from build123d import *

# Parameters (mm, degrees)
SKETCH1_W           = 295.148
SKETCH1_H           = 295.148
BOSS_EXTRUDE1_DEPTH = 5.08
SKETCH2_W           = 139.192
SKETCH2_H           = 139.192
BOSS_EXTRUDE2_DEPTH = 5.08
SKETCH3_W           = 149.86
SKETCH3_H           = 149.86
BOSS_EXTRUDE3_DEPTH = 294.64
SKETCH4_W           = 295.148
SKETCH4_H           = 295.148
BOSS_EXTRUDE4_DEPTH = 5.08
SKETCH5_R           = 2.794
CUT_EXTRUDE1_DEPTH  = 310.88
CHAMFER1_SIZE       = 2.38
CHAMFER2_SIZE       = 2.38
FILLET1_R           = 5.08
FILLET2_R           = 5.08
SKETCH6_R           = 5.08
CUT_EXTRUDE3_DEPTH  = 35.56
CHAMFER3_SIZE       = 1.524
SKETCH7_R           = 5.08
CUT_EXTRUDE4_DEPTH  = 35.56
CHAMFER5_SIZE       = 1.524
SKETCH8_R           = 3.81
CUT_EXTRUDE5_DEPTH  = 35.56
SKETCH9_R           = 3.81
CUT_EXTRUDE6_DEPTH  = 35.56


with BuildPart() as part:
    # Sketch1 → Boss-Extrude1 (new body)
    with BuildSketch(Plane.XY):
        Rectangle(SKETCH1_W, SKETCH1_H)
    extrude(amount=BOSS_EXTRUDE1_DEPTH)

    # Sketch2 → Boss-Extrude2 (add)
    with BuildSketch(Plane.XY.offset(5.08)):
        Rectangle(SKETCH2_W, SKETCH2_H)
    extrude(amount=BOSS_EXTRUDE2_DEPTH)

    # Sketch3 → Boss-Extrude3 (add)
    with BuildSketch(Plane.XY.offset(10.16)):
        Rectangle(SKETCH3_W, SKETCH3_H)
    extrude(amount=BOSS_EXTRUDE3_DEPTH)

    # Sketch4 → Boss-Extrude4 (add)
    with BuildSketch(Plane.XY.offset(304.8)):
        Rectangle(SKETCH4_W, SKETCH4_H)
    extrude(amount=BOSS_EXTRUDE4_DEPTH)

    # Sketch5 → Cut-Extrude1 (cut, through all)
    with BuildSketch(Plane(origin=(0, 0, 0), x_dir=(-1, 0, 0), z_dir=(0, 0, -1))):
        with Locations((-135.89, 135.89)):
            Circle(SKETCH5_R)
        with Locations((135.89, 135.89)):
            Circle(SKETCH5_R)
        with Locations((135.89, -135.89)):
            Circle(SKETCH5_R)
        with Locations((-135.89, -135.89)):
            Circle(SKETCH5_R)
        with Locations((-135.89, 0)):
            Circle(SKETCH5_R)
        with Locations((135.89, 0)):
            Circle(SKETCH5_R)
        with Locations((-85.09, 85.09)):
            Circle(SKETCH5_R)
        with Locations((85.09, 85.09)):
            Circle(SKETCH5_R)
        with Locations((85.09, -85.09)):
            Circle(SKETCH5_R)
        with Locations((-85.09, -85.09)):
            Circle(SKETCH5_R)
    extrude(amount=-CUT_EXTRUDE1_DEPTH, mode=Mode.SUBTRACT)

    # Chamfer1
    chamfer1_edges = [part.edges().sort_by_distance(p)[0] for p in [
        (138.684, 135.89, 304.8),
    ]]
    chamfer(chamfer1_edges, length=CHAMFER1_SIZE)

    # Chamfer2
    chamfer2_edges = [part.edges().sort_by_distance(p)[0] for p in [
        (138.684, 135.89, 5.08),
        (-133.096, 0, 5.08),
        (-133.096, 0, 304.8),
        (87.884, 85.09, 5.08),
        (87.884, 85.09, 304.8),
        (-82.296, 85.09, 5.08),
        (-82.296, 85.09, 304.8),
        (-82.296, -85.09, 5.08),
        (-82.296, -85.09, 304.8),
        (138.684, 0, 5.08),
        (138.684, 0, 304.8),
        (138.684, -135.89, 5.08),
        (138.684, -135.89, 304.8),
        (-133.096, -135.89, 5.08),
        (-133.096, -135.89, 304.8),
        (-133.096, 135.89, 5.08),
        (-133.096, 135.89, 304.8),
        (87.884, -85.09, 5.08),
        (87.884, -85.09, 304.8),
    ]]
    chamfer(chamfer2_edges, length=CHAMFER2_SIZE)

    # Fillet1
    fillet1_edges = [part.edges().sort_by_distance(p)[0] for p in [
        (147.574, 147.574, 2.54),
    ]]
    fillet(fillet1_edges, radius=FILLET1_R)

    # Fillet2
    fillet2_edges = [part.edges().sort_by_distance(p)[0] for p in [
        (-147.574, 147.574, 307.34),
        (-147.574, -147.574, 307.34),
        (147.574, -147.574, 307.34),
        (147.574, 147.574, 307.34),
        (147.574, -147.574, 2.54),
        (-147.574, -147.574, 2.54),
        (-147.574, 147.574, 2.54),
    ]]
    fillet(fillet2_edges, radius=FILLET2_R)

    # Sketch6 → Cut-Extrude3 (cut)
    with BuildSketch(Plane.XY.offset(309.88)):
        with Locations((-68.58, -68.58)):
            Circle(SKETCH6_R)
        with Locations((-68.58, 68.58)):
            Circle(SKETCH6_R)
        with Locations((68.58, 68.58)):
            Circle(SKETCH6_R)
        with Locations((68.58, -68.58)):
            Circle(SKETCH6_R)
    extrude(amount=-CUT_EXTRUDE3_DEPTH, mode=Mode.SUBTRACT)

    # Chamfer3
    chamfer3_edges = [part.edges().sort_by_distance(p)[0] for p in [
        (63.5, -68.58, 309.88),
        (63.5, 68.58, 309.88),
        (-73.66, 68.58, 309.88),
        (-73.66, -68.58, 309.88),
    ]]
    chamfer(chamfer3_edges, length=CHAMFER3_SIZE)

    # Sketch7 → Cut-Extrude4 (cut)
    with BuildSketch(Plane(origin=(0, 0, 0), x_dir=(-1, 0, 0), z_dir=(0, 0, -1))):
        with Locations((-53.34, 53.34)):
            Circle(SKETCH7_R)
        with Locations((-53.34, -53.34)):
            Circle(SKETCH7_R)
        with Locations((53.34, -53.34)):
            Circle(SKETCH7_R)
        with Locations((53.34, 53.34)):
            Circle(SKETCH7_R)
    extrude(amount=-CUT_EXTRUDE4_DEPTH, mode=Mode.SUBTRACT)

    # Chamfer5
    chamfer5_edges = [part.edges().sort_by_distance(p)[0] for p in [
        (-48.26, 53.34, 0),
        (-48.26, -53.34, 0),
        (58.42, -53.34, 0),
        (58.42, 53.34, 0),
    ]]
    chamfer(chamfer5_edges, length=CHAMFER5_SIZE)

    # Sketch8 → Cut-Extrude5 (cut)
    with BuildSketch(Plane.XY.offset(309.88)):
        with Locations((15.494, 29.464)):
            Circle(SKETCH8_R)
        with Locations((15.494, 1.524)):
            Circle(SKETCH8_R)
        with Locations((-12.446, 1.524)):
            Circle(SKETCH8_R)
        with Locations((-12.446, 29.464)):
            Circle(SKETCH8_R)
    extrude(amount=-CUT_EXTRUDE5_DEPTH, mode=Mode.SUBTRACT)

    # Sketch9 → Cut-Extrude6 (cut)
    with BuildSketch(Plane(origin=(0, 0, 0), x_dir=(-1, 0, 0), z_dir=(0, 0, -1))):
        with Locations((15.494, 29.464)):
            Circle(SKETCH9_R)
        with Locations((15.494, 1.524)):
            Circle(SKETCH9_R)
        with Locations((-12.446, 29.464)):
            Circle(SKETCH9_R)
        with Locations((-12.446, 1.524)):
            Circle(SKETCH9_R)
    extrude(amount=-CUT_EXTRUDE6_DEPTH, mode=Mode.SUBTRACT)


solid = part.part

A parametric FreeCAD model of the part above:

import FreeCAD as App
import Part
import Sketcher

V = App.Vector
Q = App.Units.Quantity


def edges_at(feature, points):
    """Names of the edges that pass closest to the given points."""
    edges = feature.Shape.Edges
    near = lambda p: min(range(len(edges)), key=lambda i: edges[i].distToShape(Part.Vertex(*p))[0])
    return sorted({f"Edge{near(p) + 1}" for p in points})


def add_polygon(sketch, points):
    """Adds a closed chain of lines whose ends are joined by coincident constraints."""
    first, n = sketch.GeometryCount, len(points)
    for a, b in zip(points, points[1:] + points[:1]):
        sketch.addGeometry(Part.LineSegment(App.Vector(*a, 0), App.Vector(*b, 0)), False)
    for i in range(n):
        sketch.addConstraint(Sketcher.Constraint("Coincident", first + i, 2, first + (i + 1) % n, 1))

doc = App.newDocument("Part")
params = doc.addObject("Spreadsheet::Sheet", "Params")
for row, (alias, value) in enumerate([
    ("sketch1_width", "11.62 in"),
    ("pad1_length", "0.2 in"),
    ("sketch2_width", "5.48 in"),
    ("pad2_length", "0.2 in"),
    ("sketch3_width", "5.9 in"),
    ("pad3_length", "11.6 in"),
    ("sketch4_width", "11.62 in"),
    ("pad4_length", "0.2 in"),
    ("sketch5_diameter", "0.22 in"),
    ("chamfer_size", "2.38 mm"),
    ("chamfer2_size", "2.38 mm"),
    ("fillet_radius", "0.2 in"),
    ("fillet2_radius", "0.2 in"),
    ("sketch6_diameter", "0.4 in"),
    ("pocket2_length", "1.4 in"),
    ("chamfer3_size", "0.06 in"),
    ("sketch7_diameter", "0.4 in"),
    ("pocket3_length", "1.4 in"),
    ("chamfer4_size", "0.06 in"),
    ("sketch8_diameter", "0.3 in"),
    ("pocket4_length", "1.4 in"),
    ("sketch9_diameter", "0.3 in"),
    ("pocket5_length", "1.4 in"),
], start=1):
    params.set(f"A{row}", alias)
    params.set(f"B{row}", "=" + value)
    params.setAlias(f"B{row}", alias)

body = doc.addObject("PartDesign::Body", "Body")

sketch1 = body.newObject("Sketcher::SketchObject", "Sketch")
sketch1.AttachmentSupport = (doc.getObject("XY_Plane"), [""])
sketch1.MapMode = "FlatFace"
add_polygon(sketch1, [(-148, 148), (-148, -148), (148, -148), (148, 148)])
sketch1.addConstraint([
    Sketcher.Constraint("Vertical", 0),
    Sketcher.Constraint("Horizontal", 1),
    Sketcher.Constraint("Vertical", 2),
    Sketcher.Constraint("Horizontal", 3),
    Sketcher.Constraint("Symmetric", 0, 2, 2, 2, -1, 1),
    Sketcher.Constraint("Equal", 3, 0),
    Sketcher.Constraint("DistanceX", 1, 1, 1, 2, Q("11.62 in")),
])
sketch1.setExpression("Constraints[10]", "Params.sketch1_width")
pad1 = body.newObject("PartDesign::Pad", "Pad")
pad1.Profile = sketch1
pad1.setExpression("Length", "Params.pad1_length")

sketch2 = body.newObject("Sketcher::SketchObject", "Sketch001")
sketch2.AttachmentSupport = (doc.getObject("XY_Plane"), [""])
sketch2.MapMode = "FlatFace"
sketch2.AttachmentOffset = App.Placement(V(0, 0, 0.2 * 25.4), App.Rotation())
add_polygon(sketch2, [(-70, 70), (-70, -70), (70, -70), (70, 70)])
sketch2.addConstraint([
    Sketcher.Constraint("Vertical", 0),
    Sketcher.Constraint("Horizontal", 1),
    Sketcher.Constraint("Vertical", 2),
    Sketcher.Constraint("Horizontal", 3),
    Sketcher.Constraint("Symmetric", 0, 2, 2, 2, -1, 1),
    Sketcher.Constraint("Equal", 3, 0),
    Sketcher.Constraint("DistanceX", 1, 1, 1, 2, Q("5.48 in")),
])
sketch2.setExpression("Constraints[10]", "Params.sketch2_width")
pad2 = body.newObject("PartDesign::Pad", "Pad001")
pad2.Profile = sketch2
pad2.setExpression("Length", "Params.pad2_length")

sketch3 = body.newObject("Sketcher::SketchObject", "Sketch002")
sketch3.AttachmentSupport = (doc.getObject("XY_Plane"), [""])
sketch3.MapMode = "FlatFace"
sketch3.AttachmentOffset = App.Placement(V(0, 0, 0.4 * 25.4), App.Rotation())
add_polygon(sketch3, [(-75, 75), (-75, -75), (75, -75), (75, 75)])
sketch3.addConstraint([
    Sketcher.Constraint("Vertical", 0),
    Sketcher.Constraint("Horizontal", 1),
    Sketcher.Constraint("Vertical", 2),
    Sketcher.Constraint("Horizontal", 3),
    Sketcher.Constraint("Symmetric", 0, 2, 2, 2, -1, 1),
    Sketcher.Constraint("Equal", 3, 0),
    Sketcher.Constraint("DistanceX", 1, 1, 1, 2, Q("5.9 in")),
])
sketch3.setExpression("Constraints[10]", "Params.sketch3_width")
pad3 = body.newObject("PartDesign::Pad", "Pad002")
pad3.Profile = sketch3
pad3.setExpression("Length", "Params.pad3_length")

sketch4 = body.newObject("Sketcher::SketchObject", "Sketch003")
sketch4.AttachmentSupport = (doc.getObject("XY_Plane"), [""])
sketch4.MapMode = "FlatFace"
sketch4.AttachmentOffset = App.Placement(V(0, 0, 12 * 25.4), App.Rotation())
add_polygon(sketch4, [(-148, 148), (-148, -148), (148, -148), (148, 148)])
sketch4.addConstraint([
    Sketcher.Constraint("Vertical", 0),
    Sketcher.Constraint("Horizontal", 1),
    Sketcher.Constraint("Vertical", 2),
    Sketcher.Constraint("Horizontal", 3),
    Sketcher.Constraint("Symmetric", 0, 2, 2, 2, -1, 1),
    Sketcher.Constraint("Equal", 3, 0),
    Sketcher.Constraint("DistanceX", 1, 1, 1, 2, Q("11.62 in")),
])
sketch4.setExpression("Constraints[10]", "Params.sketch4_width")
pad4 = body.newObject("PartDesign::Pad", "Pad003")
pad4.Profile = sketch4
pad4.setExpression("Length", "Params.pad4_length")

sketch5 = body.newObject("Sketcher::SketchObject", "Sketch004")
sketch5.AttachmentSupport = (doc.getObject("XY_Plane"), [""])
sketch5.MapMode = "FlatFace"
sketch5.addGeometry([
    Part.Circle(V(135.9, 135.9, 0), V(0, 0, 1), 2.8),
    Part.Circle(V(-135.9, 135.9, 0), V(0, 0, 1), 2.8),
    Part.Circle(V(-135.9, -135.9, 0), V(0, 0, 1), 2.8),
    Part.Circle(V(135.9, -135.9, 0), V(0, 0, 1), 2.8),
    Part.Circle(V(135.9, 0, 0), V(0, 0, 1), 2.8),
    Part.Circle(V(-135.9, 0, 0), V(0, 0, 1), 2.8),
    Part.Circle(V(85.1, 85.1, 0), V(0, 0, 1), 2.8),
    Part.Circle(V(-85.1, 85.1, 0), V(0, 0, 1), 2.8),
    Part.Circle(V(-85.1, -85.1, 0), V(0, 0, 1), 2.8),
    Part.Circle(V(85.1, -85.1, 0), V(0, 0, 1), 2.8),
], False)
sketch5.addConstraint([
    Sketcher.Constraint("Equal", 0, 1),
    Sketcher.Constraint("Equal", 1, 2),
    Sketcher.Constraint("Equal", 2, 3),
    Sketcher.Constraint("Equal", 3, 4),
    Sketcher.Constraint("Equal", 4, 5),
    Sketcher.Constraint("Equal", 5, 6),
    Sketcher.Constraint("Equal", 6, 7),
    Sketcher.Constraint("Equal", 7, 8),
    Sketcher.Constraint("Equal", 8, 9),
    Sketcher.Constraint("Symmetric", 0, 3, 2, 3, -1, 1),
    Sketcher.Constraint("Symmetric", 1, 3, 3, 3, -1, 1),
    Sketcher.Constraint("Symmetric", 4, 3, 5, 3, -1, 1),
    Sketcher.Constraint("Symmetric", 6, 3, 8, 3, -1, 1),
    Sketcher.Constraint("Symmetric", 7, 3, 9, 3, -1, 1),
    Sketcher.Constraint("Symmetric", 0, 3, 1, 3, -2),
    Sketcher.Constraint("Symmetric", 6, 3, 7, 3, -2),
    Sketcher.Constraint("PointOnObject", 4, 3, -1),
    Sketcher.Constraint("Vertical", 3, 3, 4, 3),
    Sketcher.Constraint("Diameter", 0, Q("0.22 in")),
    Sketcher.Constraint("DistanceX", 6, 3, 0, 3, Q("2 in")),
    Sketcher.Constraint("DistanceY", 6, 3, 0, 3, Q("2 in")),
    Sketcher.Constraint("DistanceX", 1, 3, 0, 3, Q("10.7 in")),
    Sketcher.Constraint("DistanceY", 2, 3, 1, 3, Q("10.7 in")),
])
sketch5.setExpression("Constraints[18]", "Params.sketch5_diameter")
pocket1 = body.newObject("PartDesign::Pocket", "Pocket")
pocket1.Profile = sketch5
pocket1.Type = "ThroughAll"
pocket1.Reversed = True
doc.recompute()

chamfer = body.newObject("PartDesign::Chamfer", "Chamfer")
chamfer.Base = (pocket1, edges_at(pocket1, [(138.684, 135.89, 304.8)]))
chamfer.setExpression("Size", "Params.chamfer_size")
doc.recompute()

chamfer2 = body.newObject("PartDesign::Chamfer", "Chamfer001")
chamfer2.Base = (chamfer, edges_at(chamfer, [
    (138.684, 135.89, 5.08),
    (-133.096, 0, 5.08),
    (-133.096, 0, 304.8),
    (87.884, 85.09, 5.08),
    (87.884, 85.09, 304.8),
    (-82.296, 85.09, 5.08),
    (-82.296, 85.09, 304.8),
    (-82.296, -85.09, 5.08),
    (-82.296, -85.09, 304.8),
    (138.684, 0, 5.08),
    (138.684, 0, 304.8),
    (138.684, -135.89, 5.08),
    (138.684, -135.89, 304.8),
    (-133.096, -135.89, 5.08),
    (-133.096, -135.89, 304.8),
    (-133.096, 135.89, 5.08),
    (-133.096, 135.89, 304.8),
    (87.884, -85.09, 5.08),
    (87.884, -85.09, 304.8),
]))
chamfer2.setExpression("Size", "Params.chamfer2_size")
doc.recompute()

fillet = body.newObject("PartDesign::Fillet", "Fillet")
fillet.Base = (chamfer2, edges_at(chamfer2, [(147.574, 147.574, 2.54)]))
fillet.setExpression("Radius", "Params.fillet_radius")
doc.recompute()

fillet2 = body.newObject("PartDesign::Fillet", "Fillet001")
fillet2.Base = (fillet, edges_at(fillet, [
    (-147.574, 147.574, 307.34),
    (-147.574, -147.574, 307.34),
    (147.574, -147.574, 307.34),
    (147.574, 147.574, 307.34),
    (147.574, -147.574, 2.54),
    (-147.574, -147.574, 2.54),
    (-147.574, 147.574, 2.54),
]))
fillet2.setExpression("Radius", "Params.fillet2_radius")

sketch6 = body.newObject("Sketcher::SketchObject", "Sketch005")
sketch6.AttachmentSupport = (doc.getObject("XY_Plane"), [""])
sketch6.MapMode = "FlatFace"
sketch6.AttachmentOffset = App.Placement(V(0, 0, 12.2 * 25.4), App.Rotation())
sketch6.addGeometry([
    Part.Circle(V(-69, -69, 0), V(0, 0, 1), 5),
    Part.Circle(V(-69, 69, 0), V(0, 0, 1), 5),
    Part.Circle(V(69, 69, 0), V(0, 0, 1), 5),
    Part.Circle(V(69, -69, 0), V(0, 0, 1), 5),
], False)
sketch6.addConstraint([
    Sketcher.Constraint("Equal", 0, 1),
    Sketcher.Constraint("Equal", 1, 2),
    Sketcher.Constraint("Equal", 2, 3),
    Sketcher.Constraint("Symmetric", 0, 3, 2, 3, -1, 1),
    Sketcher.Constraint("Symmetric", 1, 3, 3, 3, -1, 1),
    Sketcher.Constraint("Symmetric", 1, 3, 2, 3, -2),
    Sketcher.Constraint("Diameter", 0, Q("0.4 in")),
    Sketcher.Constraint("DistanceX", 0, 3, -1, 1, Q("2.7 in")),
    Sketcher.Constraint("DistanceY", 0, 3, -1, 1, Q("2.7 in")),
])
sketch6.setExpression("Constraints[6]", "Params.sketch6_diameter")
pocket2 = body.newObject("PartDesign::Pocket", "Pocket001")
pocket2.Profile = sketch6
pocket2.setExpression("Length", "Params.pocket2_length")
doc.recompute()

chamfer3 = body.newObject("PartDesign::Chamfer", "Chamfer002")
chamfer3.Base = (pocket2, edges_at(pocket2, [
    (63.5, -68.58, 309.88),
    (63.5, 68.58, 309.88),
    (-73.66, 68.58, 309.88),
    (-73.66, -68.58, 309.88),
]))
chamfer3.setExpression("Size", "Params.chamfer3_size")

sketch7 = body.newObject("Sketcher::SketchObject", "Sketch006")
sketch7.AttachmentSupport = (doc.getObject("XY_Plane"), [""])
sketch7.MapMode = "FlatFace"
sketch7.addGeometry([
    Part.Circle(V(53, 53, 0), V(0, 0, 1), 5),
    Part.Circle(V(53, -53, 0), V(0, 0, 1), 5),
    Part.Circle(V(-53, -53, 0), V(0, 0, 1), 5),
    Part.Circle(V(-53, 53, 0), V(0, 0, 1), 5),
], False)
sketch7.addConstraint([
    Sketcher.Constraint("Equal", 0, 1),
    Sketcher.Constraint("Equal", 1, 2),
    Sketcher.Constraint("Equal", 2, 3),
    Sketcher.Constraint("Symmetric", 0, 3, 2, 3, -1, 1),
    Sketcher.Constraint("Symmetric", 1, 3, 3, 3, -1, 1),
    Sketcher.Constraint("Symmetric", 1, 3, 2, 3, -2),
    Sketcher.Constraint("Diameter", 0, Q("0.4 in")),
    Sketcher.Constraint("DistanceX", -1, 1, 0, 3, Q("2.1 in")),
    Sketcher.Constraint("DistanceY", -1, 1, 0, 3, Q("2.1 in")),
])
sketch7.setExpression("Constraints[6]", "Params.sketch7_diameter")
pocket3 = body.newObject("PartDesign::Pocket", "Pocket002")
pocket3.Profile = sketch7
pocket3.setExpression("Length", "Params.pocket3_length")
pocket3.Reversed = True
doc.recompute()

chamfer4 = body.newObject("PartDesign::Chamfer", "Chamfer003")
chamfer4.Base = (pocket3, edges_at(pocket3, [
    (-48.26, 53.34, 0),
    (-48.26, -53.34, 0),
    (58.42, -53.34, 0),
    (58.42, 53.34, 0),
]))
chamfer4.setExpression("Size", "Params.chamfer4_size")

sketch8 = body.newObject("Sketcher::SketchObject", "Sketch007")
sketch8.AttachmentSupport = (doc.getObject("XY_Plane"), [""])
sketch8.MapMode = "FlatFace"
sketch8.AttachmentOffset = App.Placement(V(0, 0, 12.2 * 25.4), App.Rotation())
sketch8.addGeometry([
    Part.Circle(V(15.5, 29.5, 0), V(0, 0, 1), 3.8),
    Part.Circle(V(15.5, 1.5, 0), V(0, 0, 1), 3.8),
    Part.Circle(V(-12.4, 1.5, 0), V(0, 0, 1), 3.8),
    Part.Circle(V(-12.4, 29.5, 0), V(0, 0, 1), 3.8),
], False)
sketch8.addConstraint([
    Sketcher.Constraint("Equal", 0, 1),
    Sketcher.Constraint("Equal", 1, 2),
    Sketcher.Constraint("Equal", 2, 3),
    Sketcher.Constraint("Horizontal", 1, 3, 2, 3),
    Sketcher.Constraint("Horizontal", 0, 3, 3, 3),
    Sketcher.Constraint("Vertical", 0, 3, 1, 3),
    Sketcher.Constraint("Vertical", 2, 3, 3, 3),
    Sketcher.Constraint("Diameter", 0, Q("0.3 in")),
    Sketcher.Constraint("DistanceY", 1, 3, 0, 3, Q("1.1 in")),
    Sketcher.Constraint("DistanceX", 2, 3, 1, 3, Q("1.1 in")),
    Sketcher.Constraint("DistanceX", -1, 1, 0, 3, Q("0.61 in")),
    Sketcher.Constraint("DistanceY", -1, 1, 0, 3, Q("1.16 in")),
])
sketch8.setExpression("Constraints[7]", "Params.sketch8_diameter")
pocket4 = body.newObject("PartDesign::Pocket", "Pocket003")
pocket4.Profile = sketch8
pocket4.setExpression("Length", "Params.pocket4_length")

sketch9 = body.newObject("Sketcher::SketchObject", "Sketch008")
sketch9.AttachmentSupport = (doc.getObject("XY_Plane"), [""])
sketch9.MapMode = "FlatFace"
sketch9.addGeometry([
    Part.Circle(V(-15.5, 29.5, 0), V(0, 0, 1), 3.8),
    Part.Circle(V(-15.5, 1.5, 0), V(0, 0, 1), 3.8),
    Part.Circle(V(12.4, 29.5, 0), V(0, 0, 1), 3.8),
    Part.Circle(V(12.4, 1.5, 0), V(0, 0, 1), 3.8),
], False)
sketch9.addConstraint([
    Sketcher.Constraint("Equal", 0, 1),
    Sketcher.Constraint("Equal", 1, 2),
    Sketcher.Constraint("Equal", 2, 3),
    Sketcher.Constraint("Horizontal", 0, 3, 2, 3),
    Sketcher.Constraint("Horizontal", 1, 3, 3, 3),
    Sketcher.Constraint("Vertical", 0, 3, 1, 3),
    Sketcher.Constraint("Vertical", 2, 3, 3, 3),
    Sketcher.Constraint("Diameter", 0, Q("0.3 in")),
    Sketcher.Constraint("DistanceY", 1, 3, 0, 3, Q("1.1 in")),
    Sketcher.Constraint("DistanceX", 0, 3, 2, 3, Q("1.1 in")),
    Sketcher.Constraint("DistanceX", 0, 3, -1, 1, Q("0.61 in")),
    Sketcher.Constraint("DistanceY", -1, 1, 0, 3, Q("1.16 in")),
])
sketch9.setExpression("Constraints[7]", "Params.sketch9_diameter")
pocket5 = body.newObject("PartDesign::Pocket", "Pocket004")
pocket5.Profile = sketch9
pocket5.setExpression("Length", "Params.pocket5_length")
pocket5.Reversed = True

doc.recompute()
